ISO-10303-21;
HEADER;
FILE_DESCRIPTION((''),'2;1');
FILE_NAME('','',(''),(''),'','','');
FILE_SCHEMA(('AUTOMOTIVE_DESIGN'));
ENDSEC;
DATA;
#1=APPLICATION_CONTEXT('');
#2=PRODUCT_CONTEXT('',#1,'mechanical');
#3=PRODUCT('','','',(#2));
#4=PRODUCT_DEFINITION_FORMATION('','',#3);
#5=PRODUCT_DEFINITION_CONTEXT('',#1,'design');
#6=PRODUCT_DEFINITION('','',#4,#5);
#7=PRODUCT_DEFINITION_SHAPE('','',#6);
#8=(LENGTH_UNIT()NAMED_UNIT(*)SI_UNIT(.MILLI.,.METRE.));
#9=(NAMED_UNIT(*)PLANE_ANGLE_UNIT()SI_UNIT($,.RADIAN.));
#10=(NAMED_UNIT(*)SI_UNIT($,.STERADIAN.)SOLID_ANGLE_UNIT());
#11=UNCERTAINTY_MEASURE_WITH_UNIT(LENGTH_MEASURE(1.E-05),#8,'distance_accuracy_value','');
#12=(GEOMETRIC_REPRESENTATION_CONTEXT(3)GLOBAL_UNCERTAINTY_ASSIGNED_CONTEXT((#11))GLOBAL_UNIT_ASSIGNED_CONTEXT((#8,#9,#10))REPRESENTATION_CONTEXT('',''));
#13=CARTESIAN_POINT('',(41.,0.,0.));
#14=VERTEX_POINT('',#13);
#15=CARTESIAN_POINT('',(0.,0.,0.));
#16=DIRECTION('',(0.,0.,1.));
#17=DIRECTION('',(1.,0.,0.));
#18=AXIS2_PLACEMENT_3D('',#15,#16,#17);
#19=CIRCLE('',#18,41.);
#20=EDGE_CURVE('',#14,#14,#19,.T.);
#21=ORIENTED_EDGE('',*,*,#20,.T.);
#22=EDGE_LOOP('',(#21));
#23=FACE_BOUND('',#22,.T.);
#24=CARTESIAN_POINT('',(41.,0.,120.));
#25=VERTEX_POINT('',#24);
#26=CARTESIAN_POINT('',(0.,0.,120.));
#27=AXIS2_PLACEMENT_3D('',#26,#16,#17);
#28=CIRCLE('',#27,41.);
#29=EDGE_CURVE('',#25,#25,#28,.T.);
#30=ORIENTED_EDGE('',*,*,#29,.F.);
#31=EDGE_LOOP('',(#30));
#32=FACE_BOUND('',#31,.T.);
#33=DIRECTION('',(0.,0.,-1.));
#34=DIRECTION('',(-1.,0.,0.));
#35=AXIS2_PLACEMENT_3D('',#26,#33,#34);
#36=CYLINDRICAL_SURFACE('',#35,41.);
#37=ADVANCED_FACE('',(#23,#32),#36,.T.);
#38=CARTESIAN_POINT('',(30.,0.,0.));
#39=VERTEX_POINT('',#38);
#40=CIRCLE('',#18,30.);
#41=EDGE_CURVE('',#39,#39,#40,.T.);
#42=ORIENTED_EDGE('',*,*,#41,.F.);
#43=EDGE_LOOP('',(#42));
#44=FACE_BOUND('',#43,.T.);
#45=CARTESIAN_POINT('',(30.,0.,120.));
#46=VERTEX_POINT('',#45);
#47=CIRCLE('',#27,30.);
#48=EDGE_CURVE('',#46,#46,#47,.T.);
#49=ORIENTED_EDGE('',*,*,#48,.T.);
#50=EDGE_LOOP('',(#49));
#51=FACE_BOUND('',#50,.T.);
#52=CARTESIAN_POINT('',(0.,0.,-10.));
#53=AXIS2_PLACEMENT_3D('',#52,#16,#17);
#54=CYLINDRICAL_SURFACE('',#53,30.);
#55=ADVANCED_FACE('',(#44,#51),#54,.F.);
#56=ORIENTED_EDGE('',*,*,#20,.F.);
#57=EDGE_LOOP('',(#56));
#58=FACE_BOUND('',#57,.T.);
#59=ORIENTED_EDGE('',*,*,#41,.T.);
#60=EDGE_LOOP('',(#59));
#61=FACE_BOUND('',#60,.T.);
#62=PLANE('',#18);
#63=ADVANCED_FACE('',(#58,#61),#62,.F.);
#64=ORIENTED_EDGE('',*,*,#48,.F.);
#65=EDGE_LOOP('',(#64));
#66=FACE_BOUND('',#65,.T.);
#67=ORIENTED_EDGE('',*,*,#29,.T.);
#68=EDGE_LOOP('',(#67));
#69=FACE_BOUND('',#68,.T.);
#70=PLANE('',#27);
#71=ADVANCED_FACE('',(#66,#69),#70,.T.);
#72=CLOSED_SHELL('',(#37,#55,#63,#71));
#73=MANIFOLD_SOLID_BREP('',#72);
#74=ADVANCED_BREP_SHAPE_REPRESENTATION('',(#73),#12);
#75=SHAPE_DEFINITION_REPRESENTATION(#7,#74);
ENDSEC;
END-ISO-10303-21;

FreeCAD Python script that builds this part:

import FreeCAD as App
import Part
import Sketcher

doc = App.newDocument("Part")
body = doc.addObject("PartDesign::Body", "Body")

sketch1 = doc.addObject("Sketcher::SketchObject", "Sketch")
body.addObject(sketch1)
sketch1.AttachmentSupport = (doc.XY_Plane, [""])
sketch1.MapMode = "FlatFace"
sketch1.addGeometry(Part.Circle(App.Vector(0, 0, 0), App.Vector(0, 0, 1), 41), False)
sketch1.addConstraint([
    Sketcher.Constraint("Coincident", 0, 3, -1, 1),
    Sketcher.Constraint("Diameter", 0, 82.0),
])
pad1 = doc.addObject("PartDesign::Pad", "Pad")
body.addObject(pad1)
pad1.Profile = sketch1
pad1.Length = 120

sketch2 = doc.addObject("Sketcher::SketchObject", "Sketch001")
body.addObject(sketch2)
sketch2.AttachmentSupport = (doc.XY_Plane, [""])
sketch2.MapMode = "FlatFace"
sketch2.AttachmentOffset = App.Placement(App.Vector(0, 0, 120), App.Rotation())
sketch2.addGeometry(Part.Circle(App.Vector(0, 0, 0), App.Vector(0, 0, 1), 30), False)
sketch2.addConstraint([
    Sketcher.Constraint("Coincident", 0, 3, -1, 1),
    Sketcher.Constraint("Diameter", 0, 60.0),
])
pocket1 = doc.addObject("PartDesign::Pocket", "Pocket")
body.addObject(pocket1)
pocket1.Profile = sketch2
pocket1.Length = 130

doc.recompute()
